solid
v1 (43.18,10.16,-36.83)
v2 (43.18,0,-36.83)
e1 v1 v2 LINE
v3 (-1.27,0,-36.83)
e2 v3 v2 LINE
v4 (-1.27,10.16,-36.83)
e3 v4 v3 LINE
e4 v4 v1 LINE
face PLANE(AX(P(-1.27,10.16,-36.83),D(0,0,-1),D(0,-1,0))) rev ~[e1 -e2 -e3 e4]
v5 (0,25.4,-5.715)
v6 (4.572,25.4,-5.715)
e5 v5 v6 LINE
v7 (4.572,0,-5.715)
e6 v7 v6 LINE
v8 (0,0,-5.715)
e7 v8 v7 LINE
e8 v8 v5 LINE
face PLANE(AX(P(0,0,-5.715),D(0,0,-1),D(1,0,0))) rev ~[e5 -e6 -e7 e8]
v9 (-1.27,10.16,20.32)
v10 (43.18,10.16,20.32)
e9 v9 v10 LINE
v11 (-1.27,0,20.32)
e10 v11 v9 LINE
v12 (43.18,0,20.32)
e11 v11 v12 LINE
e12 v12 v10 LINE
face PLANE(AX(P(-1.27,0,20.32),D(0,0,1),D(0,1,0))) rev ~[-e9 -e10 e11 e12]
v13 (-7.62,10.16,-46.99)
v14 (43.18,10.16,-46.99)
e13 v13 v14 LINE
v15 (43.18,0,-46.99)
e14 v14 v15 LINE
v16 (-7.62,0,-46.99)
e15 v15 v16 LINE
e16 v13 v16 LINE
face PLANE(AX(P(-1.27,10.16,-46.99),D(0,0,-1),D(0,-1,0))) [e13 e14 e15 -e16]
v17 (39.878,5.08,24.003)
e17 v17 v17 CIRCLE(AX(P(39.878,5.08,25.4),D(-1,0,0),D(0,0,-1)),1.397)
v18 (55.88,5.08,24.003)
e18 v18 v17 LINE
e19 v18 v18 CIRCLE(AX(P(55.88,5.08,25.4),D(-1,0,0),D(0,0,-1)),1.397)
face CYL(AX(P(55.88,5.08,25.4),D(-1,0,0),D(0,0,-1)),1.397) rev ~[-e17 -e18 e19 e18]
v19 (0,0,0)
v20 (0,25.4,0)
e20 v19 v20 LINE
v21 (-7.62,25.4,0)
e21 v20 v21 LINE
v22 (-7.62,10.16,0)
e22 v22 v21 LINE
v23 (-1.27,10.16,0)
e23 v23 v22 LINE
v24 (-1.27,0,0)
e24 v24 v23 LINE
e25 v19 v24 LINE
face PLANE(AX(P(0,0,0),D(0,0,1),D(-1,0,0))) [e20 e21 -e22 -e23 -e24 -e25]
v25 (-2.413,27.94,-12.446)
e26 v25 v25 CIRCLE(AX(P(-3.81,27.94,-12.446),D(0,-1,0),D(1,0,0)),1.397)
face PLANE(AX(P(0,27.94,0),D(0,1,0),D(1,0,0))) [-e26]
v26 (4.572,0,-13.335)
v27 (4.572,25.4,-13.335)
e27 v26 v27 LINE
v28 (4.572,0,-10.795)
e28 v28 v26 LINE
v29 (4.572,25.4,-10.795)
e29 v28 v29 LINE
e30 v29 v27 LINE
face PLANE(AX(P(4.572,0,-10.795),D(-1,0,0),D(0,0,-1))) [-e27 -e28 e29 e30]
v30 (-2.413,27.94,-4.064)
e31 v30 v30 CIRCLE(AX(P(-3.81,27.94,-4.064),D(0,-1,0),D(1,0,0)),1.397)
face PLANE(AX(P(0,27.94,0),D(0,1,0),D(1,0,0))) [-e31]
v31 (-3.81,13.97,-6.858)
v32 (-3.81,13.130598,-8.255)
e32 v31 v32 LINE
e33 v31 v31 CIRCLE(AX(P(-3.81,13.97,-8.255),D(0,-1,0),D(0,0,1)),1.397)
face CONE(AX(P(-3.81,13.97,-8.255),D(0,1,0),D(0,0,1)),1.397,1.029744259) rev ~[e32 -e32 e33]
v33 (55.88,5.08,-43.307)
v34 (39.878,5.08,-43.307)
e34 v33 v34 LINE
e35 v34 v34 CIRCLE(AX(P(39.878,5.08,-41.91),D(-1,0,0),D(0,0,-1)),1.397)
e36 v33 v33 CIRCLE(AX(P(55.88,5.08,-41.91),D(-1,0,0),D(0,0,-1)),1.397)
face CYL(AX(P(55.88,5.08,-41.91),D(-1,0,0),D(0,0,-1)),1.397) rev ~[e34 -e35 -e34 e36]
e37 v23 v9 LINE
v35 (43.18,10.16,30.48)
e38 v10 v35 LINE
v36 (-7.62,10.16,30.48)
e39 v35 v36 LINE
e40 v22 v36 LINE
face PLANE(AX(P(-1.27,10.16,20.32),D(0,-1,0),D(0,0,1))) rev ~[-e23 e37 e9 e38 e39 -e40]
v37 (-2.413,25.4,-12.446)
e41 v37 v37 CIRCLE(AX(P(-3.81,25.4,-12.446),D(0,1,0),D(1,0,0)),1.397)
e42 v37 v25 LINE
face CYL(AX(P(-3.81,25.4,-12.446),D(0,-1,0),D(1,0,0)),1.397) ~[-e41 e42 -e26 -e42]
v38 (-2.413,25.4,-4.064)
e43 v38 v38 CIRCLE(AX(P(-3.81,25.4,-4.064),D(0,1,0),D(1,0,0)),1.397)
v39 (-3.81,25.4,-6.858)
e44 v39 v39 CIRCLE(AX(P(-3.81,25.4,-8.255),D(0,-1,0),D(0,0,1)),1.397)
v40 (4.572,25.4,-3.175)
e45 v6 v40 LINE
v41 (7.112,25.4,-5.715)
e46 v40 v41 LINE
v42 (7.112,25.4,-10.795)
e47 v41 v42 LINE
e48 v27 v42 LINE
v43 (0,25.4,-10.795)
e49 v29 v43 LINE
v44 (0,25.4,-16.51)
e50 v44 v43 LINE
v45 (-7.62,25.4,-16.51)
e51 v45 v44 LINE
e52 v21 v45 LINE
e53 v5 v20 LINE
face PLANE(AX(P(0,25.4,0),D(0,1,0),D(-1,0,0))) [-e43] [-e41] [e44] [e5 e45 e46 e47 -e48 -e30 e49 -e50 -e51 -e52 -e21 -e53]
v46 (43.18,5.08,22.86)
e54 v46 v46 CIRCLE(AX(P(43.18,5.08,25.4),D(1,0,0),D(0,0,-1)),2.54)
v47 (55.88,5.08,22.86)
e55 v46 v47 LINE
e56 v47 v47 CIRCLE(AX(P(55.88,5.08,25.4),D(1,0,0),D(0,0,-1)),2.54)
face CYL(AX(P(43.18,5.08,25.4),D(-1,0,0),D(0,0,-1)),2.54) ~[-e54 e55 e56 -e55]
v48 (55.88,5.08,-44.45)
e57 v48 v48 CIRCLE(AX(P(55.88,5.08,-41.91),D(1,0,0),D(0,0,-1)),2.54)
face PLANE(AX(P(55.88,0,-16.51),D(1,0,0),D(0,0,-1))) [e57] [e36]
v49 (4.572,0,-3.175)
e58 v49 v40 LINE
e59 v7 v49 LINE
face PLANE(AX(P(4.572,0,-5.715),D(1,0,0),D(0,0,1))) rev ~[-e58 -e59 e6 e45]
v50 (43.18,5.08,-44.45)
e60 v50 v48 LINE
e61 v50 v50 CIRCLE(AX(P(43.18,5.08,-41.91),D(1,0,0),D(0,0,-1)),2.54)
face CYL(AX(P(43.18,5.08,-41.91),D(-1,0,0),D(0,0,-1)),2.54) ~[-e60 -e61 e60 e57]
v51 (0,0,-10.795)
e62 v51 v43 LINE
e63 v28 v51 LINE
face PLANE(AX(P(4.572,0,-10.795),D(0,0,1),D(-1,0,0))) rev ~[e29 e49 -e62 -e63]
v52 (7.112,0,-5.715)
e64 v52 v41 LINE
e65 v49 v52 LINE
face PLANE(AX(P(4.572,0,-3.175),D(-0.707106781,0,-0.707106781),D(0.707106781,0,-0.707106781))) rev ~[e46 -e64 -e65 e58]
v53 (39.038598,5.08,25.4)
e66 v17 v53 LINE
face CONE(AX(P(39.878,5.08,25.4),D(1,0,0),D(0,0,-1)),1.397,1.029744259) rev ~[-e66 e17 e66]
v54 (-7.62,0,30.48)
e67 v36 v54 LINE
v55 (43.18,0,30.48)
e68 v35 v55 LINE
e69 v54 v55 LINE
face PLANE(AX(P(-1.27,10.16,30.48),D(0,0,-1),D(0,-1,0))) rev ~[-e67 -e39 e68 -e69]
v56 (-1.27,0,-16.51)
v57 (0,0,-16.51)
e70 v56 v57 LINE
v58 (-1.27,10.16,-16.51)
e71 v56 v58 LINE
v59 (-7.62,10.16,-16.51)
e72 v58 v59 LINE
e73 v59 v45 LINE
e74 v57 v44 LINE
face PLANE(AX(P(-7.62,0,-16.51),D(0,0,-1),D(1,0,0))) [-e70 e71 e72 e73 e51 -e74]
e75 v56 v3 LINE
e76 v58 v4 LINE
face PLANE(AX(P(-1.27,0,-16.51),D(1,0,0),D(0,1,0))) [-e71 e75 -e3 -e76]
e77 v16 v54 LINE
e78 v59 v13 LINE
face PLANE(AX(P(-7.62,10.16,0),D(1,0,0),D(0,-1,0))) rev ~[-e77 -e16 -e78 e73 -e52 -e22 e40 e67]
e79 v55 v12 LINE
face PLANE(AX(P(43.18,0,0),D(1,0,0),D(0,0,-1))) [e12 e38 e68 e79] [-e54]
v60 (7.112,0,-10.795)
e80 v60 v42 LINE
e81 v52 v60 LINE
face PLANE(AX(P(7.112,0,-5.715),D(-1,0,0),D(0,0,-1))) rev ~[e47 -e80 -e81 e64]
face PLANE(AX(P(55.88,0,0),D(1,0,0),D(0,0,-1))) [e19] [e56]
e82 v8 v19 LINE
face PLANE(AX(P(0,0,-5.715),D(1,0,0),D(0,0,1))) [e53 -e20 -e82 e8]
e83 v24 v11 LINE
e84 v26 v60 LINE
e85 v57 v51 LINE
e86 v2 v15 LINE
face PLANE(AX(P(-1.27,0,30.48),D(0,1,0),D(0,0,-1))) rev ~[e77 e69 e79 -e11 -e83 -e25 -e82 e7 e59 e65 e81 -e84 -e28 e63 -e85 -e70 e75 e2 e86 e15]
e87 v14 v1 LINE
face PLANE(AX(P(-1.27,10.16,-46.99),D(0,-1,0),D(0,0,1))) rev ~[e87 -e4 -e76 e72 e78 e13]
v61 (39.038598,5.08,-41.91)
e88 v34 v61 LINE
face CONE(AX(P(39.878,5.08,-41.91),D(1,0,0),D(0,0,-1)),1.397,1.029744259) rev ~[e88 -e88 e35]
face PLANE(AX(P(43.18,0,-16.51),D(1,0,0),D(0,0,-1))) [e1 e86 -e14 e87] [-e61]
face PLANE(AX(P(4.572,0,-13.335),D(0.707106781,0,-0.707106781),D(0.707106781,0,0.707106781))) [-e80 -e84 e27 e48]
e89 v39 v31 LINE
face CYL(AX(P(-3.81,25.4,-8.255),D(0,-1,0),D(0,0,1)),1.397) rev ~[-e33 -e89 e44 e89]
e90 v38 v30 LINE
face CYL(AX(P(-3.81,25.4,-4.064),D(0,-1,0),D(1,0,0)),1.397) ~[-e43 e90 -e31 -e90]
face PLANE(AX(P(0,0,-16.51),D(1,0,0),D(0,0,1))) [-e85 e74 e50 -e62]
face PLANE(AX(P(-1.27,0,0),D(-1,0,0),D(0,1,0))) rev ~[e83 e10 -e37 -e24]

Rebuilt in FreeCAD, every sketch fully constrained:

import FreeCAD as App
import Part
import Sketcher
from FreeCAD import Vector
Q = App.Units.Quantity

doc = App.newDocument("Part")
body = doc.addObject("PartDesign::Body", "Body")

# Sketch on XZ plane
sketch1 = body.newObject("Sketcher::SketchObject", "Sketch")
sketch1.AttachmentSupport = (doc.getObject("XZ_Plane"), [""])
sketch1.MapMode = "FlatFace"
sketch1.addGeometry(Part.LineSegment(Vector(-7.62, 0, 0), Vector(0, 0, 0)), False)
sketch1.addGeometry(Part.LineSegment(Vector(0, 0, 0), Vector(0, -5.715, 0)), False)
sketch1.addGeometry(Part.LineSegment(Vector(0, -5.715, 0), Vector(4.572, -5.715, 0)), False)
sketch1.addGeometry(Part.LineSegment(Vector(4.572, -5.715, 0), Vector(4.572, -3.175, 0)), False)
sketch1.addGeometry(Part.LineSegment(Vector(4.572, -3.175, 0), Vector(7.112, -5.715, 0)), False)
sketch1.addGeometry(Part.LineSegment(Vector(7.112, -5.715, 0), Vector(7.112, -10.795, 0)), False)
sketch1.addGeometry(Part.LineSegment(Vector(7.112, -10.795, 0), Vector(4.572, -13.335, 0)), False)
sketch1.addGeometry(Part.LineSegment(Vector(4.572, -13.335, 0), Vector(4.572, -10.795, 0)), False)
sketch1.addGeometry(Part.LineSegment(Vector(4.572, -10.795, 0), Vector(0, -10.795, 0)), False)
sketch1.addGeometry(Part.LineSegment(Vector(0, -10.795, 0), Vector(0, -16.51, 0)), False)
sketch1.addGeometry(Part.LineSegment(Vector(0, -16.51, 0), Vector(-7.62, -16.51, 0)), False)
sketch1.addGeometry(Part.LineSegment(Vector(-7.62, -16.51, 0), Vector(-7.62, 0, 0)), False)
sketch1.addConstraint(Sketcher.Constraint("Coincident", 0, 2, 1, 1))
sketch1.addConstraint(Sketcher.Constraint("Coincident", 1, 2, 2, 1))
sketch1.addConstraint(Sketcher.Constraint("Coincident", 2, 2, 3, 1))
sketch1.addConstraint(Sketcher.Constraint("Coincident", 3, 2, 4, 1))
sketch1.addConstraint(Sketcher.Constraint("Coincident", 4, 2, 5, 1))
sketch1.addConstraint(Sketcher.Constraint("Coincident", 5, 2, 6, 1))
sketch1.addConstraint(Sketcher.Constraint("Coincident", 6, 2, 7, 1))
sketch1.addConstraint(Sketcher.Constraint("Coincident", 7, 2, 8, 1))
sketch1.addConstraint(Sketcher.Constraint("Coincident", 8, 2, 9, 1))
sketch1.addConstraint(Sketcher.Constraint("Coincident", 9, 2, 10, 1))
sketch1.addConstraint(Sketcher.Constraint("Coincident", 10, 2, 11, 1))
sketch1.addConstraint(Sketcher.Constraint("Coincident", 11, 2, 0, 1))
sketch1.addConstraint(Sketcher.Constraint("Horizontal", 0))
sketch1.addConstraint(Sketcher.Constraint("Vertical", 1))
sketch1.addConstraint(Sketcher.Constraint("Horizontal", 2))
sketch1.addConstraint(Sketcher.Constraint("Vertical", 3))
sketch1.addConstraint(Sketcher.Constraint("Vertical", 5))
sketch1.addConstraint(Sketcher.Constraint("Vertical", 7))
sketch1.addConstraint(Sketcher.Constraint("Horizontal", 8))
sketch1.addConstraint(Sketcher.Constraint("Vertical", 9))
sketch1.addConstraint(Sketcher.Constraint("Horizontal", 10))
sketch1.addConstraint(Sketcher.Constraint("Vertical", 11))
sketch1.addConstraint(Sketcher.Constraint("Coincident", 0, 2, -1, 1))
sketch1.addConstraint(Sketcher.Constraint("PointOnObject", 8, 2, -2))
sketch1.addConstraint(Sketcher.Constraint("Perpendicular", 4, 6))
sketch1.addConstraint(Sketcher.Constraint("Horizontal", 2, 2, 4, 2))
sketch1.addConstraint(Sketcher.Constraint("Horizontal", 5, 2, 7, 2))
sketch1.addConstraint(Sketcher.Constraint("Vertical", 3, 2, 6, 2))
sketch1.addConstraint(Sketcher.Constraint("Equal", 3, 7))
sketch1.addConstraint(Sketcher.Constraint("Equal", 1, 9))
sketch1.addConstraint(Sketcher.Constraint("DistanceX", 0, 1, 0, 2, Q("0.3 in")))
sketch1.addConstraint(Sketcher.Constraint("DistanceY", 3, 1, 3, 2, Q("0.1 in")))
sketch1.addConstraint(Sketcher.Constraint("DistanceY", 5, 2, 5, 1, Q("0.2 in")))
sketch1.addConstraint(Sketcher.Constraint("DistanceY", 11, 1, 11, 2, Q("0.65 in")))
sketch1.addConstraint(Sketcher.Constraint("DistanceX", -1, 1, 4, 2, Q("0.28 in")))
pad1 = body.newObject("PartDesign::Pad", "Pad")
pad1.Profile = sketch1
pad1.Length = Q("1 in")
pad1.Reversed = True

# Sketch on XZ plane
sketch2 = body.newObject("Sketcher::SketchObject", "Sketch001")
sketch2.AttachmentSupport = (doc.getObject("XZ_Plane"), [""])
sketch2.MapMode = "FlatFace"
sketch2.AttachmentOffset = App.Placement(Vector(0, 0, -1 * 25.4), App.Rotation())
sketch2.addGeometry(Part.Circle(Vector(-3.81, -4.064, 0), Vector(0, 0, 1), 1.397), False)
sketch2.addGeometry(Part.Circle(Vector(-3.81, -12.446, 0), Vector(0, 0, 1), 1.397), False)
sketch2.addConstraint(Sketcher.Constraint("Equal", 0, 1))
sketch2.addConstraint(Sketcher.Constraint("Vertical", 0, 3, 1, 3))
sketch2.addConstraint(Sketcher.Constraint("Diameter", 0, Q("0.11 in")))
sketch2.addConstraint(Sketcher.Constraint("DistanceY", 0, 3, -1, 1, Q("0.16 in")))
sketch2.addConstraint(Sketcher.Constraint("DistanceX", 0, 3, -1, 1, Q("0.15 in")))
sketch2.addConstraint(Sketcher.Constraint("DistanceY", 1, 3, -1, 1, Q("0.49 in")))
pad2 = body.newObject("PartDesign::Pad", "Pad001")
pad2.Profile = sketch2
pad2.Length = Q("0.1 in")
pad2.Reversed = True

# Sketch on XZ plane
sketch3 = body.newObject("Sketcher::SketchObject", "Sketch002")
sketch3.AttachmentSupport = (doc.getObject("XZ_Plane"), [""])
sketch3.MapMode = "FlatFace"
sketch3.AttachmentOffset = App.Placement(Vector(0, 0, -1 * 25.4), App.Rotation())
sketch3.addGeometry(Part.Circle(Vector(-3.81, -8.255, 0), Vector(0, 0, 1), 1.397), False)
sketch3.addConstraint(Sketcher.Constraint("Diameter", 0, Q("0.11 in")))
sketch3.addConstraint(Sketcher.Constraint("DistanceX", 0, 3, -1, 1, Q("0.15 in")))
sketch3.addConstraint(Sketcher.Constraint("DistanceY", 0, 3, -1, 1, Q("0.325 in")))
doc.recompute()
hole = body.newObject("PartDesign::Hole", "Hole")
hole.Profile = sketch3
hole.ThreadType = "None"
hole.Diameter = Q("0.11 in")
hole.DepthType = "Dimension"
hole.Depth = Q("0.45 in")
hole.DrillPoint = "Angled"
hole.DrillPointAngle = 118
hole.Reversed = True

# Sketch on XY plane
sketch4 = body.newObject("Sketcher::SketchObject", "Sketch003")
sketch4.AttachmentSupport = (doc.getObject("XY_Plane"), [""])
sketch4.MapMode = "FlatFace"
sketch4.AttachmentOffset = App.Placement(Vector(0, 0, -0.65 * 25.4), App.Rotation())
sketch4.addGeometry(Part.LineSegment(Vector(-1.27, 0, 0), Vector(-7.62, 0, 0)), False)
sketch4.addGeometry(Part.LineSegment(Vector(-7.62, 0, 0), Vector(-7.62, 10.16, 0)), False)
sketch4.addGeometry(Part.LineSegment(Vector(-7.62, 10.16, 0), Vector(-1.27, 10.16, 0)), False)
sketch4.addGeometry(Part.LineSegment(Vector(-1.27, 10.16, 0), Vector(-1.27, 0, 0)), False)
sketch4.addConstraint(Sketcher.Constraint("Coincident", 0, 2, 1, 1))
sketch4.addConstraint(Sketcher.Constraint("Coincident", 1, 2, 2, 1))
sketch4.addConstraint(Sketcher.Constraint("Coincident", 2, 2, 3, 1))
sketch4.addConstraint(Sketcher.Constraint("Coincident", 3, 2, 0, 1))
sketch4.addConstraint(Sketcher.Constraint("Horizontal", 0))
sketch4.addConstraint(Sketcher.Constraint("Vertical", 1))
sketch4.addConstraint(Sketcher.Constraint("Horizontal", 2))
sketch4.addConstraint(Sketcher.Constraint("Vertical", 3))
sketch4.addConstraint(Sketcher.Constraint("PointOnObject", 0, 2, -1))
sketch4.addConstraint(Sketcher.Constraint("DistanceY", 1, 1, 1, 2, Q("0.4 in")))
sketch4.addConstraint(Sketcher.Constraint("DistanceX", 0, 2, 0, 1, Q("0.25 in")))
sketch4.addConstraint(Sketcher.Constraint("DistanceX", 0, 2, -1, 1, Q("0.3 in")))
pad3 = body.newObject("PartDesign::Pad", "Pad002")
pad3.Profile = sketch4
pad3.Length = Q("1.2 in")
pad3.Reversed = True

# Sketch on YZ plane
sketch5 = body.newObject("Sketcher::SketchObject", "Sketch004")
sketch5.AttachmentSupport = (doc.getObject("YZ_Plane"), [""])
sketch5.MapMode = "FlatFace"
sketch5.AttachmentOffset = App.Placement(Vector(0, 0, -0.05 * 25.4), App.Rotation())
sketch5.addGeometry(Part.LineSegment(Vector(0, -46.99, 0), Vector(10.16, -46.99, 0)), False)
sketch5.addGeometry(Part.LineSegment(Vector(10.16, -46.99, 0), Vector(10.16, -36.83, 0)), False)
sketch5.addGeometry(Part.LineSegment(Vector(10.16, -36.83, 0), Vector(0, -36.83, 0)), False)
sketch5.addGeometry(Part.LineSegment(Vector(0, -36.83, 0), Vector(0, -46.99, 0)), False)
sketch5.addConstraint(Sketcher.Constraint("Coincident", 0, 2, 1, 1))
sketch5.addConstraint(Sketcher.Constraint("Coincident", 1, 2, 2, 1))
sketch5.addConstraint(Sketcher.Constraint("Coincident", 2, 2, 3, 1))
sketch5.addConstraint(Sketcher.Constraint("Coincident", 3, 2, 0, 1))
sketch5.addConstraint(Sketcher.Constraint("Horizontal", 0))
sketch5.addConstraint(Sketcher.Constraint("Vertical", 1))
sketch5.addConstraint(Sketcher.Constraint("Horizontal", 2))
sketch5.addConstraint(Sketcher.Constraint("Vertical", 3))
sketch5.addConstraint(Sketcher.Constraint("PointOnObject", 2, 2, -2))
sketch5.addConstraint(Sketcher.Constraint("Equal", 2, 1))
sketch5.addConstraint(Sketcher.Constraint("DistanceX", 0, 1, 0, 2, Q("0.4 in")))
sketch5.addConstraint(Sketcher.Constraint("DistanceY", 0, 2, -1, 1, Q("1.85 in")))
pad4 = body.newObject("PartDesign::Pad", "Pad003")
pad4.Profile = sketch5
pad4.Length = Q("1.75 in")

# Sketch on YZ plane
sketch6 = body.newObject("Sketcher::SketchObject", "Sketch005")
sketch6.AttachmentSupport = (doc.getObject("YZ_Plane"), [""])
sketch6.MapMode = "FlatFace"
sketch6.AttachmentOffset = App.Placement(Vector(0, 0, 1.7 * 25.4), App.Rotation())
sketch6.addGeometry(Part.Circle(Vector(5.08, -41.91, 0), Vector(0, 0, 1), 2.54), False)
sketch6.addConstraint(Sketcher.Constraint("Diameter", 0, Q("0.2 in")))
sketch6.addConstraint(Sketcher.Constraint("DistanceX", -1, 1, 0, 3, Q("0.2 in")))
sketch6.addConstraint(Sketcher.Constraint("DistanceY", 0, 3, -1, 1, Q("1.65 in")))
pad5 = body.newObject("PartDesign::Pad", "Pad004")
pad5.Profile = sketch6
pad5.Length = Q("0.5 in")

# Sketch on YZ plane
sketch7 = body.newObject("Sketcher::SketchObject", "Sketch006")
sketch7.AttachmentSupport = (doc.getObject("YZ_Plane"), [""])
sketch7.MapMode = "FlatFace"
sketch7.AttachmentOffset = App.Placement(Vector(0, 0, 2.2 * 25.4), App.Rotation())
sketch7.addGeometry(Part.Circle(Vector(5.08, -41.91, 0), Vector(0, 0, 1), 1.397), False)
sketch7.addConstraint(Sketcher.Constraint("Diameter", 0, Q("0.11 in")))
sketch7.addConstraint(Sketcher.Constraint("DistanceX", -1, 1, 0, 3, Q("0.2 in")))
sketch7.addConstraint(Sketcher.Constraint("DistanceY", 0, 3, -1, 1, Q("1.65 in")))
doc.recompute()
hole2 = body.newObject("PartDesign::Hole", "Hole001")
hole2.Profile = sketch7
hole2.ThreadType = "None"
hole2.Diameter = Q("0.11 in")
hole2.DepthType = "Dimension"
hole2.Depth = Q("0.63 in")
hole2.DrillPoint = "Angled"
hole2.DrillPointAngle = 118

# Sketch on XY plane
sketch8 = body.newObject("Sketcher::SketchObject", "Sketch007")
sketch8.AttachmentSupport = (doc.getObject("XY_Plane"), [""])
sketch8.MapMode = "FlatFace"
sketch8.addGeometry(Part.LineSegment(Vector(-7.62, 10.16, 0), Vector(-7.62, 0, 0)), False)
sketch8.addGeometry(Part.LineSegment(Vector(-7.62, 0, 0), Vector(-1.27, 0, 0)), False)
sketch8.addGeometry(Part.LineSegment(Vector(-1.27, 0, 0), Vector(-1.27, 10.16, 0)), False)
sketch8.addGeometry(Part.LineSegment(Vector(-1.27, 10.16, 0), Vector(-7.62, 10.16, 0)), False)
sketch8.addConstraint(Sketcher.Constraint("Coincident", 0, 2, 1, 1))
sketch8.addConstraint(Sketcher.Constraint("Coincident", 1, 2, 2, 1))
sketch8.addConstraint(Sketcher.Constraint("Coincident", 2, 2, 3, 1))
sketch8.addConstraint(Sketcher.Constraint("Coincident", 3, 2, 0, 1))
sketch8.addConstraint(Sketcher.Constraint("Vertical", 0))
sketch8.addConstraint(Sketcher.Constraint("Horizontal", 1))
sketch8.addConstraint(Sketcher.Constraint("Vertical", 2))
sketch8.addConstraint(Sketcher.Constraint("Horizontal", 3))
sketch8.addConstraint(Sketcher.Constraint("PointOnObject", 0, 2, -1))
sketch8.addConstraint(Sketcher.Constraint("DistanceY", 0, 2, 0, 1, Q("0.4 in")))
sketch8.addConstraint(Sketcher.Constraint("DistanceX", 1, 1, 1, 2, Q("0.25 in")))
sketch8.addConstraint(Sketcher.Constraint("DistanceX", 0, 2, -1, 1, Q("0.3 in")))
pad6 = body.newObject("PartDesign::Pad", "Pad005")
pad6.Profile = sketch8
pad6.Length = Q("1.2 in")

# Sketch on YZ plane
sketch9 = body.newObject("Sketcher::SketchObject", "Sketch008")
sketch9.AttachmentSupport = (doc.getObject("YZ_Plane"), [""])
sketch9.MapMode = "FlatFace"
sketch9.AttachmentOffset = App.Placement(Vector(0, 0, -0.05 * 25.4), App.Rotation())
sketch9.addGeometry(Part.LineSegment(Vector(10.16, 30.48, 0), Vector(0, 30.48, 0)), False)
sketch9.addGeometry(Part.LineSegment(Vector(0, 30.48, 0), Vector(0, 20.32, 0)), False)
sketch9.addGeometry(Part.LineSegment(Vector(0, 20.32, 0), Vector(10.16, 20.32, 0)), False)
sketch9.addGeometry(Part.LineSegment(Vector(10.16, 20.32, 0), Vector(10.16, 30.48, 0)), False)
sketch9.addConstraint(Sketcher.Constraint("Coincident", 0, 2, 1, 1))
sketch9.addConstraint(Sketcher.Constraint("Coincident", 1, 2, 2, 1))
sketch9.addConstraint(Sketcher.Constraint("Coincident", 2, 2, 3, 1))
sketch9.addConstraint(Sketcher.Constraint("Coincident", 3, 2, 0, 1))
sketch9.addConstraint(Sketcher.Constraint("Horizontal", 0))
sketch9.addConstraint(Sketcher.Constraint("Vertical", 1))
sketch9.addConstraint(Sketcher.Constraint("Horizontal", 2))
sketch9.addConstraint(Sketcher.Constraint("Vertical", 3))
sketch9.addConstraint(Sketcher.Constraint("PointOnObject", 0, 2, -2))
sketch9.addConstraint(Sketcher.Constraint("Equal", 2, 1))
sketch9.addConstraint(Sketcher.Constraint("DistanceX", 0, 2, 0, 1, Q("0.4 in")))
sketch9.addConstraint(Sketcher.Constraint("DistanceY", -1, 1, 0, 2, Q("1.2 in")))
pad7 = body.newObject("PartDesign::Pad", "Pad006")
pad7.Profile = sketch9
pad7.Length = Q("1.75 in")

# Sketch on YZ plane
sketch10 = body.newObject("Sketcher::SketchObject", "Sketch009")
sketch10.AttachmentSupport = (doc.getObject("YZ_Plane"), [""])
sketch10.MapMode = "FlatFace"
sketch10.AttachmentOffset = App.Placement(Vector(0, 0, 1.7 * 25.4), App.Rotation())
sketch10.addGeometry(Part.Circle(Vector(5.08, 25.4, 0), Vector(0, 0, 1), 2.54), False)
sketch10.addConstraint(Sketcher.Constraint("Diameter", 0, Q("0.2 in")))
sketch10.addConstraint(Sketcher.Constraint("DistanceX", -1, 1, 0, 3, Q("0.2 in")))
sketch10.addConstraint(Sketcher.Constraint("DistanceY", -1, 1, 0, 3, Q("1 in")))
pad8 = body.newObject("PartDesign::Pad", "Pad007")
pad8.Profile = sketch10
pad8.Length = Q("0.5 in")

# Sketch on YZ plane
sketch11 = body.newObject("Sketcher::SketchObject", "Sketch010")
sketch11.AttachmentSupport = (doc.getObject("YZ_Plane"), [""])
sketch11.MapMode = "FlatFace"
sketch11.AttachmentOffset = App.Placement(Vector(0, 0, 2.2 * 25.4), App.Rotation())
sketch11.addGeometry(Part.Circle(Vector(5.08, 25.4, 0), Vector(0, 0, 1), 1.397), False)
sketch11.addConstraint(Sketcher.Constraint("Diameter", 0, Q("0.11 in")))
sketch11.addConstraint(Sketcher.Constraint("DistanceY", -1, 1, 0, 3, Q("1 in")))
sketch11.addConstraint(Sketcher.Constraint("DistanceX", -1, 1, 0, 3, Q("0.2 in")))
doc.recompute()
hole3 = body.newObject("PartDesign::Hole", "Hole002")
hole3.Profile = sketch11
hole3.ThreadType = "None"
hole3.Diameter = Q("0.11 in")
hole3.DepthType = "Dimension"
hole3.Depth = Q("0.63 in")
hole3.DrillPoint = "Angled"
hole3.DrillPointAngle = 118

doc.recompute()
